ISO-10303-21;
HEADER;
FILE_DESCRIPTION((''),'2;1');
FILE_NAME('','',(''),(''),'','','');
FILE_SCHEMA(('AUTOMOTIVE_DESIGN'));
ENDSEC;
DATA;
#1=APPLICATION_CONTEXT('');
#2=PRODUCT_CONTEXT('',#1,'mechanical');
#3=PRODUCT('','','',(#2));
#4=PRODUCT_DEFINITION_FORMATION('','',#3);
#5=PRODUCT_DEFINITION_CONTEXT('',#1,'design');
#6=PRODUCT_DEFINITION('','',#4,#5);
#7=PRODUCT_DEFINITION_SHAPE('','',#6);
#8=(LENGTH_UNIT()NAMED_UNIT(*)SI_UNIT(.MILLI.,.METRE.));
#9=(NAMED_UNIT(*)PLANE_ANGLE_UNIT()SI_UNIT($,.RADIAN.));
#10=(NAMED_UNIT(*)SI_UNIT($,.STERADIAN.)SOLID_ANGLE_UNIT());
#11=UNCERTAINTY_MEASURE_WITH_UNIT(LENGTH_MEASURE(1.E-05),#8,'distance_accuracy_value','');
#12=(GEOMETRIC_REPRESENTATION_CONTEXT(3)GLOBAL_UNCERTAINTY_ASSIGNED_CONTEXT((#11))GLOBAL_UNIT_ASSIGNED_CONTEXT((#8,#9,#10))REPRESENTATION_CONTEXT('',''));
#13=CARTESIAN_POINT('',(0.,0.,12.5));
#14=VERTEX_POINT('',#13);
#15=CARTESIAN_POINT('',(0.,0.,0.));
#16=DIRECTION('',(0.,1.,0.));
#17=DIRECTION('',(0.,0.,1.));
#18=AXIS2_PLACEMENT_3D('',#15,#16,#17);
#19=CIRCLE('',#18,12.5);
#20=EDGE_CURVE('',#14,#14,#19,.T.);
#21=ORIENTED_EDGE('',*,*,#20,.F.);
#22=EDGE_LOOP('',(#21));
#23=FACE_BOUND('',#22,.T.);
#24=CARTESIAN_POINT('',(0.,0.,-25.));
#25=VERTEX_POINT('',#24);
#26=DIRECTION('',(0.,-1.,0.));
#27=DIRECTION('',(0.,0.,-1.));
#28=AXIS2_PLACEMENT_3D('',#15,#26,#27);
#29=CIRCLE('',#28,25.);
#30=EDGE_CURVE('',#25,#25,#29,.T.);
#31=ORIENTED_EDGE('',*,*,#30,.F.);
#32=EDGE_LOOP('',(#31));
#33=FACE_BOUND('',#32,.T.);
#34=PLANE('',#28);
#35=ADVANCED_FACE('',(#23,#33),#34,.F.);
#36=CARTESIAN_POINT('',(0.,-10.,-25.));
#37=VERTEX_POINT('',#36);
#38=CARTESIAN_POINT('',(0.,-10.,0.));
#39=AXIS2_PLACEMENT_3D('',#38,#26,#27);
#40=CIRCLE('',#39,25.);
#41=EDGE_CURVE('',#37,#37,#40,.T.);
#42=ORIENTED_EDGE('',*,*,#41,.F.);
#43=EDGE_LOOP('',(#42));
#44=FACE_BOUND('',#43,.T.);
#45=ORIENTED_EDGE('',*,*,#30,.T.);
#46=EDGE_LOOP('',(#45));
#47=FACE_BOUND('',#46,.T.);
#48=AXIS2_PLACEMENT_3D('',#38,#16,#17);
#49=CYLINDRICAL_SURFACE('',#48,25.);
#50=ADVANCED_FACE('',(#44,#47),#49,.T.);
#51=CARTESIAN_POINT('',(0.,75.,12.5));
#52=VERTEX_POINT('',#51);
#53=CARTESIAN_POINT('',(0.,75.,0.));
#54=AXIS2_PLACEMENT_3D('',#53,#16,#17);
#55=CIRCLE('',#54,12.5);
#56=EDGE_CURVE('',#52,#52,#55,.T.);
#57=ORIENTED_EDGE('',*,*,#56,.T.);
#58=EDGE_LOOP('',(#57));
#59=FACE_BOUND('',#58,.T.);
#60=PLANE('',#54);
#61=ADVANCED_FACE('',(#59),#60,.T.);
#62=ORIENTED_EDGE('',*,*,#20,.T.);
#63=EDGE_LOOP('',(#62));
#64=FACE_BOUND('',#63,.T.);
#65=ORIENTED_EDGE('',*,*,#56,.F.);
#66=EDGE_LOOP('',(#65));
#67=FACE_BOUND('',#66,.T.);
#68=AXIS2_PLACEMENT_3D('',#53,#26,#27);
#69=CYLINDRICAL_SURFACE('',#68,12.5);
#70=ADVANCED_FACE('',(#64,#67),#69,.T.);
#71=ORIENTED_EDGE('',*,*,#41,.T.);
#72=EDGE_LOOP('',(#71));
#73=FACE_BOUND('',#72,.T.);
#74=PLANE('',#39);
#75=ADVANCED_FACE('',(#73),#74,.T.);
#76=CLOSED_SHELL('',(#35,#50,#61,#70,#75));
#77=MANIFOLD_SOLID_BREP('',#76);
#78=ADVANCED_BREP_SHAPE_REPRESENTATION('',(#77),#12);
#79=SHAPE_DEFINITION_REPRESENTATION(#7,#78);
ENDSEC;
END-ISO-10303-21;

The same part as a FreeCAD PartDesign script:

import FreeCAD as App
import Part
import Sketcher
from FreeCAD import Vector
Q = App.Units.Quantity

doc = App.newDocument("Part")
body = doc.addObject("PartDesign::Body", "Body")

# Sketch on XZ plane
sketch1 = doc.addObject("Sketcher::SketchObject", "Sketch")
body.addObject(sketch1)
sketch1.AttachmentSupport = (doc.XZ_Plane, [""])
sketch1.MapMode = "FlatFace"
sketch1.addGeometry(Part.Circle(Vector(0, 0, 0), Vector(0, 0, 1), 12), False)
sketch1.addConstraint([
    Sketcher.Constraint("Coincident", 0, 3, -1, 1),
    Sketcher.Constraint("Diameter", 0, Q("25 mm")),
])
pad1 = doc.addObject("PartDesign::Pad", "Pad")
body.addObject(pad1)
pad1.Profile = sketch1
pad1.Length = 75
pad1.Reversed = True

# Sketch on XZ plane
sketch2 = doc.addObject("Sketcher::SketchObject", "Sketch001")
body.addObject(sketch2)
sketch2.AttachmentSupport = (doc.XZ_Plane, [""])
sketch2.MapMode = "FlatFace"
sketch2.addGeometry(Part.Circle(Vector(0, 0, 0), Vector(0, 0, 1), 25), False)
sketch2.addConstraint([
    Sketcher.Constraint("Coincident", 0, 3, -1, 1),
    Sketcher.Constraint("Diameter", 0, Q("50 mm")),
])
pad2 = doc.addObject("PartDesign::Pad", "Pad001")
body.addObject(pad2)
pad2.Profile = sketch2
pad2.Length = 10

doc.recompute()
